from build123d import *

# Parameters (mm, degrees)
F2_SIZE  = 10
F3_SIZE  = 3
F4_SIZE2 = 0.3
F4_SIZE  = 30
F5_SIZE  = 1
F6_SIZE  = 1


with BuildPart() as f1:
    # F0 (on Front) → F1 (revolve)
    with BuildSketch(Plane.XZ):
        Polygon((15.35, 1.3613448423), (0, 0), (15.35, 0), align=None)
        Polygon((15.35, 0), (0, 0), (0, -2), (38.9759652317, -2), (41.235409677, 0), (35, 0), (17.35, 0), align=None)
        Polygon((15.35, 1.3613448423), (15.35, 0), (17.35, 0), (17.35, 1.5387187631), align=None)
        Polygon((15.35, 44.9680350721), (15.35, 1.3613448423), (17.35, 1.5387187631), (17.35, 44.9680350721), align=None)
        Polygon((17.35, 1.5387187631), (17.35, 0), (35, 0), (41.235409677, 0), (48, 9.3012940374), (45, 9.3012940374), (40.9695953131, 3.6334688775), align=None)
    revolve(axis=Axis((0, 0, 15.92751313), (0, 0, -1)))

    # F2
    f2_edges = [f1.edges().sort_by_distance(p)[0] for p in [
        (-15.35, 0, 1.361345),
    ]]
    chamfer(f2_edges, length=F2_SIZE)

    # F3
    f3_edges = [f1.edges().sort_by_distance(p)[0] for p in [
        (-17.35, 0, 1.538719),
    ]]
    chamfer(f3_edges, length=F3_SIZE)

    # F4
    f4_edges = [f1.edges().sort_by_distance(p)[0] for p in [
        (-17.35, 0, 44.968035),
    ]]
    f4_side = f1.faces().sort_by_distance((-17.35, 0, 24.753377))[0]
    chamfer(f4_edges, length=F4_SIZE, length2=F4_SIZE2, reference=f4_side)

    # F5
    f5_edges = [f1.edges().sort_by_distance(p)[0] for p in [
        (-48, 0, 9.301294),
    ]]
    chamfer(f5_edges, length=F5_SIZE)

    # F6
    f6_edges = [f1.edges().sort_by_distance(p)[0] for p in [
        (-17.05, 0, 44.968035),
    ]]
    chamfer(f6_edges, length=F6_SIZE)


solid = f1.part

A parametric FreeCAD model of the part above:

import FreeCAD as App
import Part
import Sketcher


def edges_at(feature, points):
    """Names of the edges that pass closest to the given points."""
    edges = feature.Shape.Edges
    near = lambda p: min(range(len(edges)), key=lambda i: edges[i].distToShape(Part.Vertex(*p))[0])
    return sorted({f"Edge{near(p) + 1}" for p in points})

doc = App.newDocument("Part")
body = doc.addObject("PartDesign::Body", "Body")

# Sketch on XZ plane
sketch1 = doc.addObject("Sketcher::SketchObject", "Sketch")
body.addObject(sketch1)
sketch1.AttachmentSupport = (doc.XZ_Plane, [""])
sketch1.MapMode = "FlatFace"
sketch1.addGeometry(Part.LineSegment(App.Vector(15.3, 1.4, 0), App.Vector(0, 0, 0)), False)
sketch1.addGeometry(Part.LineSegment(App.Vector(0, 0, 0), App.Vector(0, -2, 0)), False)
sketch1.addGeometry(Part.LineSegment(App.Vector(0, -2, 0), App.Vector(39, -2, 0)), False)
sketch1.addGeometry(Part.LineSegment(App.Vector(39, -2, 0), App.Vector(41.2, 0, 0)), False)
sketch1.addGeometry(Part.LineSegment(App.Vector(41.2, 0, 0), App.Vector(48, 9.3, 0)), False)
sketch1.addGeometry(Part.LineSegment(App.Vector(48, 9.3, 0), App.Vector(45, 9.3, 0)), False)
sketch1.addGeometry(Part.LineSegment(App.Vector(45, 9.3, 0), App.Vector(41, 3.6, 0)), False)
sketch1.addGeometry(Part.LineSegment(App.Vector(41, 3.6, 0), App.Vector(17.4, 1.5, 0)), False)
sketch1.addGeometry(Part.LineSegment(App.Vector(17.4, 1.5, 0), App.Vector(17.4, 45, 0)), False)
sketch1.addGeometry(Part.LineSegment(App.Vector(17.4, 45, 0), App.Vector(15.3, 45, 0)), False)
sketch1.addGeometry(Part.LineSegment(App.Vector(15.3, 45, 0), App.Vector(15.3, 1.4, 0)), False)
sketch1.addConstraint(Sketcher.Constraint("Coincident", 0, 2, 1, 1))
sketch1.addConstraint(Sketcher.Constraint("Coincident", 1, 2, 2, 1))
sketch1.addConstraint(Sketcher.Constraint("Coincident", 2, 2, 3, 1))
sketch1.addConstraint(Sketcher.Constraint("Coincident", 3, 2, 4, 1))
sketch1.addConstraint(Sketcher.Constraint("Coincident", 4, 2, 5, 1))
sketch1.addConstraint(Sketcher.Constraint("Coincident", 5, 2, 6, 1))
sketch1.addConstraint(Sketcher.Constraint("Coincident", 6, 2, 7, 1))
sketch1.addConstraint(Sketcher.Constraint("Coincident", 7, 2, 8, 1))
sketch1.addConstraint(Sketcher.Constraint("Coincident", 8, 2, 9, 1))
sketch1.addConstraint(Sketcher.Constraint("Coincident", 9, 2, 10, 1))
sketch1.addConstraint(Sketcher.Constraint("Coincident", 10, 2, 0, 1))
sketch1.addConstraint(Sketcher.Constraint("Vertical", 1))
sketch1.addConstraint(Sketcher.Constraint("Horizontal", 2))
sketch1.addConstraint(Sketcher.Constraint("Horizontal", 5))
sketch1.addConstraint(Sketcher.Constraint("Vertical", 8))
sketch1.addConstraint(Sketcher.Constraint("Horizontal", 9))
sketch1.addConstraint(Sketcher.Constraint("Vertical", 10))
sketch1.addConstraint(Sketcher.Constraint("Coincident", 0, 2, -1, 1))
sketch1.addConstraint(Sketcher.Constraint("PointOnObject", 3, 2, -1))
sketch1.addConstraint(Sketcher.Constraint("Parallel", 0, 7))
sketch1.addConstraint(Sketcher.Constraint("Equal", 9, 1))
sketch1.addConstraint(Sketcher.Constraint("DistanceX", 5, 2, 5, 1, 3.0))
sketch1.addConstraint(Sketcher.Constraint("DistanceX", 9, 2, 9, 1, 2.0))
sketch1.addConstraint(Sketcher.Constraint("DistanceX", -1, 1, 4, 2, 48.0))
sketch1.addConstraint(Sketcher.Constraint("DistanceX", -1, 1, 7, 2, 17.35))
sketch1.addConstraint(Sketcher.Constraint("Distance", 7, 23.712302))
sketch1.addConstraint(Sketcher.Constraint("DistanceY", 10, 2, 10, 1, 43.60669))
sketch1.addConstraint(Sketcher.Constraint("Distance", 0, 15.410249))
sketch1.addConstraint(Sketcher.Constraint("Distance", 6, 6.95474))
sketch1.addConstraint(Sketcher.Constraint("DistanceX", 2, 1, 2, 2, 38.975965))
sketch1.addConstraint(Sketcher.Constraint("DistanceY", 8, 1, 8, 2, 43.429316))
sketch1.addConstraint(Sketcher.Constraint("DistanceX", -1, 1, 3, 2, 41.23541))
revolution = doc.addObject("PartDesign::Revolution", "Revolution")
body.addObject(revolution)
revolution.Profile = sketch1
revolution.ReferenceAxis = (sketch1, ["V_Axis"])
revolution.Angle = 360
doc.recompute()

chamfer = doc.addObject("PartDesign::Chamfer", "Chamfer")
body.addObject(chamfer)
chamfer.Base = (revolution, edges_at(revolution, [(-15.35, 0, 1.361)]))
chamfer.Size = 10
doc.recompute()

chamfer2 = doc.addObject("PartDesign::Chamfer", "Chamfer001")
body.addObject(chamfer2)
chamfer2.Base = (chamfer, edges_at(chamfer, [(-17.35, 0, 1.539)]))
chamfer2.Size = 3
doc.recompute()

chamfer3 = doc.addObject("PartDesign::Chamfer", "Chamfer002")
body.addObject(chamfer3)
chamfer3.Base = (chamfer2, edges_at(chamfer2, [(-17.35, 0, 44.968)]))
chamfer3.ChamferType = "Two distances"
chamfer3.Size = 30
chamfer3.Size2 = 0.3
doc.recompute()

chamfer4 = doc.addObject("PartDesign::Chamfer", "Chamfer003")
body.addObject(chamfer4)
chamfer4.Base = (chamfer3, edges_at(chamfer3, [(-48, 0, 9.301)]))
chamfer4.Size = 1
doc.recompute()

chamfer5 = doc.addObject("PartDesign::Chamfer", "Chamfer004")
body.addObject(chamfer5)
chamfer5.Base = (chamfer4, edges_at(chamfer4, [(-17.05, 0, 44.968)]))
chamfer5.Size = 1

doc.recompute()
